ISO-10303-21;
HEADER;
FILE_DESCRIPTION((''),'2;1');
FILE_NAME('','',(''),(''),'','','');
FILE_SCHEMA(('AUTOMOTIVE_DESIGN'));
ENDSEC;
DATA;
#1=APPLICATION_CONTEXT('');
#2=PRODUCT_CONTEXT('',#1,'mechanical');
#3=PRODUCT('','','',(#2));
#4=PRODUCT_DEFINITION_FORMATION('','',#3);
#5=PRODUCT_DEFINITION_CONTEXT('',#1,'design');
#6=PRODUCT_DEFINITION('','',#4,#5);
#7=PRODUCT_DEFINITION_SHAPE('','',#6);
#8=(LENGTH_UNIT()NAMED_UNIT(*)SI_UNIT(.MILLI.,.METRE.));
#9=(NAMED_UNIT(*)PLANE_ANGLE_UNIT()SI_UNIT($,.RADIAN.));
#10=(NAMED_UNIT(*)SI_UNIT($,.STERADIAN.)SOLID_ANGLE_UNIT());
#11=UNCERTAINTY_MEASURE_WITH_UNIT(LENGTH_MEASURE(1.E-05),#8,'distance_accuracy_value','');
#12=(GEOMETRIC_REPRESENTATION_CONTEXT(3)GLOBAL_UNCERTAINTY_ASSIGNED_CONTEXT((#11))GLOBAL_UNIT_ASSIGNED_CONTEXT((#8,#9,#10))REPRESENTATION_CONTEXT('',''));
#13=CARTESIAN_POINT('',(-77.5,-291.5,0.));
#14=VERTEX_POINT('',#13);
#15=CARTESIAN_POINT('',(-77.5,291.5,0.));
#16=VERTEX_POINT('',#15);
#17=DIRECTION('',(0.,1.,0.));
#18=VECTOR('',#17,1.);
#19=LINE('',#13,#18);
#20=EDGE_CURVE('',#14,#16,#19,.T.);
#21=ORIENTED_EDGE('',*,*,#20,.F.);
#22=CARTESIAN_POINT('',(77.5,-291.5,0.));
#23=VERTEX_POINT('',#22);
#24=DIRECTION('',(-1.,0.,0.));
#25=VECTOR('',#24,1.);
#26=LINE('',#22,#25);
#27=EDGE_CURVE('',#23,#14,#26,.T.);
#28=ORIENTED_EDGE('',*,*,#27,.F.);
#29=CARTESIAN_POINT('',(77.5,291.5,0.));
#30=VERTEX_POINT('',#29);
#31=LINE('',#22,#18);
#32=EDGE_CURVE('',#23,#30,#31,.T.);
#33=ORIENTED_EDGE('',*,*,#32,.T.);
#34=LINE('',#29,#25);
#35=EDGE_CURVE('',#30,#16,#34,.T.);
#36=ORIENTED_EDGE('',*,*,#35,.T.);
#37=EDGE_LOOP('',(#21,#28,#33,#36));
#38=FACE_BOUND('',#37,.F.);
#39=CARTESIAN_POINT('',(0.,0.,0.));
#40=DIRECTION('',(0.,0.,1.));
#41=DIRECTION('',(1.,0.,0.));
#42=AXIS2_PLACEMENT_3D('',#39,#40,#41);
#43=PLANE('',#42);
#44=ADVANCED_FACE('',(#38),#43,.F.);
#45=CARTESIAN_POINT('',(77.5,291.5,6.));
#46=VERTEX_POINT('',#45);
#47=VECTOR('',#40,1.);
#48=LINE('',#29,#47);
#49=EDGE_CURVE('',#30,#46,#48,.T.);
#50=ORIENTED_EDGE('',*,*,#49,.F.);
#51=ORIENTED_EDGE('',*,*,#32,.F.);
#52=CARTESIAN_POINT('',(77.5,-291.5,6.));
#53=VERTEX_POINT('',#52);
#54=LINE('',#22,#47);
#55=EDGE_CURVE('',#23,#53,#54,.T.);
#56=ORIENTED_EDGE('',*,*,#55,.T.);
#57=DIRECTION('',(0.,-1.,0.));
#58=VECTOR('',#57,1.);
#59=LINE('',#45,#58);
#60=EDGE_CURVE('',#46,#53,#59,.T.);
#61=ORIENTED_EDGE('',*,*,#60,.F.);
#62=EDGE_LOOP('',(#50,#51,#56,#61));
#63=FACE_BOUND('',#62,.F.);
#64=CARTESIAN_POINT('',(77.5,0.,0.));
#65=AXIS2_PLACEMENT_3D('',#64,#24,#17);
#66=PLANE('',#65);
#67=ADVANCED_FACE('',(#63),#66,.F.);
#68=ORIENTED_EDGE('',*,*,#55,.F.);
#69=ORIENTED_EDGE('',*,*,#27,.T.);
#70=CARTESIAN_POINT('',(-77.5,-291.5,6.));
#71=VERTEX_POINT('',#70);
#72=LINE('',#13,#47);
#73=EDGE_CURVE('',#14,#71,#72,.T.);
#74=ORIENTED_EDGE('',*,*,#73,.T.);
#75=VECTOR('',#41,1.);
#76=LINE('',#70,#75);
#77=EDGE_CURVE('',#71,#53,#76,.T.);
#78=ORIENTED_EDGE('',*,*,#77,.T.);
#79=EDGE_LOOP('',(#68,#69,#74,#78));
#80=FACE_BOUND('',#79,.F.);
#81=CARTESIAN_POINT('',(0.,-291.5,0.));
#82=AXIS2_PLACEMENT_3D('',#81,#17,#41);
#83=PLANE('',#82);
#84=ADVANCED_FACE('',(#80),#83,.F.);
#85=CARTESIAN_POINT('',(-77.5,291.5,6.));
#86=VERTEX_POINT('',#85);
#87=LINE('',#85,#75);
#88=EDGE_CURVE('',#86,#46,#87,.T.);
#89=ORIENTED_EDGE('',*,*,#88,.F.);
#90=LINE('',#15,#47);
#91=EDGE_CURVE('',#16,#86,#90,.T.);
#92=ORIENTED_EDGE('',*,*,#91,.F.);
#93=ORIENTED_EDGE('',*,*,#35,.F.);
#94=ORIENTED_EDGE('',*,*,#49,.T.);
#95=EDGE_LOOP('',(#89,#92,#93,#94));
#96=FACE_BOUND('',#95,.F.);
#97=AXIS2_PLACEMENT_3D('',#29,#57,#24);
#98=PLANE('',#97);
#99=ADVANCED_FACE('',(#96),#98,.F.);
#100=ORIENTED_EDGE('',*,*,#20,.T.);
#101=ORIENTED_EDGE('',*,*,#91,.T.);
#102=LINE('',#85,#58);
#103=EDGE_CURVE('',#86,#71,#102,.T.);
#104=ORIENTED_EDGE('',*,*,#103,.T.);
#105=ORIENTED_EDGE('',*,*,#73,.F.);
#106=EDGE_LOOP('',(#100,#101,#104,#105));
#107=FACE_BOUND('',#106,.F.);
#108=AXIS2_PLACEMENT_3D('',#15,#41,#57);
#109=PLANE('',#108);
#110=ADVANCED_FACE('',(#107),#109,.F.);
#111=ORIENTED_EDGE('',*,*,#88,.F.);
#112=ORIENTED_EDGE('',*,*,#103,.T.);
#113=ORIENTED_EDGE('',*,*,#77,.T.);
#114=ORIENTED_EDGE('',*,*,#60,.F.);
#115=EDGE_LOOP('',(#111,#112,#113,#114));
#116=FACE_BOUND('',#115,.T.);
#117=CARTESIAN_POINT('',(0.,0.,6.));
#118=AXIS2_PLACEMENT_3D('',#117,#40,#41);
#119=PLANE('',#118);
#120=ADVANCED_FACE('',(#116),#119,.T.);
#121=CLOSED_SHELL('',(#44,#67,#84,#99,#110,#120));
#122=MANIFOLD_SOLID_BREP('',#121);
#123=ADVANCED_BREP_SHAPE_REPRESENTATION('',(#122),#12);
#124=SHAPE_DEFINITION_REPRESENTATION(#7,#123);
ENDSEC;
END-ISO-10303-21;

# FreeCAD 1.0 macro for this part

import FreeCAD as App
import Part
import Sketcher

V = App.Vector
Q = App.Units.Quantity


def add_polygon(sketch, points):
    """Adds a closed chain of lines whose ends are joined by coincident constraints."""
    first, n = sketch.GeometryCount, len(points)
    for a, b in zip(points, points[1:] + points[:1]):
        sketch.addGeometry(Part.LineSegment(App.Vector(*a, 0), App.Vector(*b, 0)), False)
    for i in range(n):
        sketch.addConstraint(Sketcher.Constraint("Coincident", first + i, 2, first + (i + 1) % n, 1))

doc = App.newDocument("Part")
body = doc.addObject("PartDesign::Body", "Body")

# Sketch on XY plane
sketch1 = body.newObject("Sketcher::SketchObject", "Sketch")
sketch1.AttachmentSupport = (doc.getObject("XY_Plane"), [""])
sketch1.MapMode = "FlatFace"
add_polygon(sketch1, [(77.5, 291.5), (-77.5, 291.5), (-77.5, -291.5), (77.5, -291.5)])  # lines 0-3
sketch1.addConstraint([
    Sketcher.Constraint("Horizontal", 0),
    Sketcher.Constraint("Vertical", 1),
    Sketcher.Constraint("Horizontal", 2),
    Sketcher.Constraint("Vertical", 3),
    Sketcher.Constraint("Symmetric", 0, 2, 2, 2, -1, 1),
    Sketcher.Constraint("DistanceX", 0, 2, 0, 1, Q("155 mm")),
    Sketcher.Constraint("DistanceY", 1, 2, 1, 1, Q("583 mm")),
])
pad1 = body.newObject("PartDesign::Pad", "Pad")
pad1.Profile = sketch1
pad1.Length = 6

doc.recompute()
